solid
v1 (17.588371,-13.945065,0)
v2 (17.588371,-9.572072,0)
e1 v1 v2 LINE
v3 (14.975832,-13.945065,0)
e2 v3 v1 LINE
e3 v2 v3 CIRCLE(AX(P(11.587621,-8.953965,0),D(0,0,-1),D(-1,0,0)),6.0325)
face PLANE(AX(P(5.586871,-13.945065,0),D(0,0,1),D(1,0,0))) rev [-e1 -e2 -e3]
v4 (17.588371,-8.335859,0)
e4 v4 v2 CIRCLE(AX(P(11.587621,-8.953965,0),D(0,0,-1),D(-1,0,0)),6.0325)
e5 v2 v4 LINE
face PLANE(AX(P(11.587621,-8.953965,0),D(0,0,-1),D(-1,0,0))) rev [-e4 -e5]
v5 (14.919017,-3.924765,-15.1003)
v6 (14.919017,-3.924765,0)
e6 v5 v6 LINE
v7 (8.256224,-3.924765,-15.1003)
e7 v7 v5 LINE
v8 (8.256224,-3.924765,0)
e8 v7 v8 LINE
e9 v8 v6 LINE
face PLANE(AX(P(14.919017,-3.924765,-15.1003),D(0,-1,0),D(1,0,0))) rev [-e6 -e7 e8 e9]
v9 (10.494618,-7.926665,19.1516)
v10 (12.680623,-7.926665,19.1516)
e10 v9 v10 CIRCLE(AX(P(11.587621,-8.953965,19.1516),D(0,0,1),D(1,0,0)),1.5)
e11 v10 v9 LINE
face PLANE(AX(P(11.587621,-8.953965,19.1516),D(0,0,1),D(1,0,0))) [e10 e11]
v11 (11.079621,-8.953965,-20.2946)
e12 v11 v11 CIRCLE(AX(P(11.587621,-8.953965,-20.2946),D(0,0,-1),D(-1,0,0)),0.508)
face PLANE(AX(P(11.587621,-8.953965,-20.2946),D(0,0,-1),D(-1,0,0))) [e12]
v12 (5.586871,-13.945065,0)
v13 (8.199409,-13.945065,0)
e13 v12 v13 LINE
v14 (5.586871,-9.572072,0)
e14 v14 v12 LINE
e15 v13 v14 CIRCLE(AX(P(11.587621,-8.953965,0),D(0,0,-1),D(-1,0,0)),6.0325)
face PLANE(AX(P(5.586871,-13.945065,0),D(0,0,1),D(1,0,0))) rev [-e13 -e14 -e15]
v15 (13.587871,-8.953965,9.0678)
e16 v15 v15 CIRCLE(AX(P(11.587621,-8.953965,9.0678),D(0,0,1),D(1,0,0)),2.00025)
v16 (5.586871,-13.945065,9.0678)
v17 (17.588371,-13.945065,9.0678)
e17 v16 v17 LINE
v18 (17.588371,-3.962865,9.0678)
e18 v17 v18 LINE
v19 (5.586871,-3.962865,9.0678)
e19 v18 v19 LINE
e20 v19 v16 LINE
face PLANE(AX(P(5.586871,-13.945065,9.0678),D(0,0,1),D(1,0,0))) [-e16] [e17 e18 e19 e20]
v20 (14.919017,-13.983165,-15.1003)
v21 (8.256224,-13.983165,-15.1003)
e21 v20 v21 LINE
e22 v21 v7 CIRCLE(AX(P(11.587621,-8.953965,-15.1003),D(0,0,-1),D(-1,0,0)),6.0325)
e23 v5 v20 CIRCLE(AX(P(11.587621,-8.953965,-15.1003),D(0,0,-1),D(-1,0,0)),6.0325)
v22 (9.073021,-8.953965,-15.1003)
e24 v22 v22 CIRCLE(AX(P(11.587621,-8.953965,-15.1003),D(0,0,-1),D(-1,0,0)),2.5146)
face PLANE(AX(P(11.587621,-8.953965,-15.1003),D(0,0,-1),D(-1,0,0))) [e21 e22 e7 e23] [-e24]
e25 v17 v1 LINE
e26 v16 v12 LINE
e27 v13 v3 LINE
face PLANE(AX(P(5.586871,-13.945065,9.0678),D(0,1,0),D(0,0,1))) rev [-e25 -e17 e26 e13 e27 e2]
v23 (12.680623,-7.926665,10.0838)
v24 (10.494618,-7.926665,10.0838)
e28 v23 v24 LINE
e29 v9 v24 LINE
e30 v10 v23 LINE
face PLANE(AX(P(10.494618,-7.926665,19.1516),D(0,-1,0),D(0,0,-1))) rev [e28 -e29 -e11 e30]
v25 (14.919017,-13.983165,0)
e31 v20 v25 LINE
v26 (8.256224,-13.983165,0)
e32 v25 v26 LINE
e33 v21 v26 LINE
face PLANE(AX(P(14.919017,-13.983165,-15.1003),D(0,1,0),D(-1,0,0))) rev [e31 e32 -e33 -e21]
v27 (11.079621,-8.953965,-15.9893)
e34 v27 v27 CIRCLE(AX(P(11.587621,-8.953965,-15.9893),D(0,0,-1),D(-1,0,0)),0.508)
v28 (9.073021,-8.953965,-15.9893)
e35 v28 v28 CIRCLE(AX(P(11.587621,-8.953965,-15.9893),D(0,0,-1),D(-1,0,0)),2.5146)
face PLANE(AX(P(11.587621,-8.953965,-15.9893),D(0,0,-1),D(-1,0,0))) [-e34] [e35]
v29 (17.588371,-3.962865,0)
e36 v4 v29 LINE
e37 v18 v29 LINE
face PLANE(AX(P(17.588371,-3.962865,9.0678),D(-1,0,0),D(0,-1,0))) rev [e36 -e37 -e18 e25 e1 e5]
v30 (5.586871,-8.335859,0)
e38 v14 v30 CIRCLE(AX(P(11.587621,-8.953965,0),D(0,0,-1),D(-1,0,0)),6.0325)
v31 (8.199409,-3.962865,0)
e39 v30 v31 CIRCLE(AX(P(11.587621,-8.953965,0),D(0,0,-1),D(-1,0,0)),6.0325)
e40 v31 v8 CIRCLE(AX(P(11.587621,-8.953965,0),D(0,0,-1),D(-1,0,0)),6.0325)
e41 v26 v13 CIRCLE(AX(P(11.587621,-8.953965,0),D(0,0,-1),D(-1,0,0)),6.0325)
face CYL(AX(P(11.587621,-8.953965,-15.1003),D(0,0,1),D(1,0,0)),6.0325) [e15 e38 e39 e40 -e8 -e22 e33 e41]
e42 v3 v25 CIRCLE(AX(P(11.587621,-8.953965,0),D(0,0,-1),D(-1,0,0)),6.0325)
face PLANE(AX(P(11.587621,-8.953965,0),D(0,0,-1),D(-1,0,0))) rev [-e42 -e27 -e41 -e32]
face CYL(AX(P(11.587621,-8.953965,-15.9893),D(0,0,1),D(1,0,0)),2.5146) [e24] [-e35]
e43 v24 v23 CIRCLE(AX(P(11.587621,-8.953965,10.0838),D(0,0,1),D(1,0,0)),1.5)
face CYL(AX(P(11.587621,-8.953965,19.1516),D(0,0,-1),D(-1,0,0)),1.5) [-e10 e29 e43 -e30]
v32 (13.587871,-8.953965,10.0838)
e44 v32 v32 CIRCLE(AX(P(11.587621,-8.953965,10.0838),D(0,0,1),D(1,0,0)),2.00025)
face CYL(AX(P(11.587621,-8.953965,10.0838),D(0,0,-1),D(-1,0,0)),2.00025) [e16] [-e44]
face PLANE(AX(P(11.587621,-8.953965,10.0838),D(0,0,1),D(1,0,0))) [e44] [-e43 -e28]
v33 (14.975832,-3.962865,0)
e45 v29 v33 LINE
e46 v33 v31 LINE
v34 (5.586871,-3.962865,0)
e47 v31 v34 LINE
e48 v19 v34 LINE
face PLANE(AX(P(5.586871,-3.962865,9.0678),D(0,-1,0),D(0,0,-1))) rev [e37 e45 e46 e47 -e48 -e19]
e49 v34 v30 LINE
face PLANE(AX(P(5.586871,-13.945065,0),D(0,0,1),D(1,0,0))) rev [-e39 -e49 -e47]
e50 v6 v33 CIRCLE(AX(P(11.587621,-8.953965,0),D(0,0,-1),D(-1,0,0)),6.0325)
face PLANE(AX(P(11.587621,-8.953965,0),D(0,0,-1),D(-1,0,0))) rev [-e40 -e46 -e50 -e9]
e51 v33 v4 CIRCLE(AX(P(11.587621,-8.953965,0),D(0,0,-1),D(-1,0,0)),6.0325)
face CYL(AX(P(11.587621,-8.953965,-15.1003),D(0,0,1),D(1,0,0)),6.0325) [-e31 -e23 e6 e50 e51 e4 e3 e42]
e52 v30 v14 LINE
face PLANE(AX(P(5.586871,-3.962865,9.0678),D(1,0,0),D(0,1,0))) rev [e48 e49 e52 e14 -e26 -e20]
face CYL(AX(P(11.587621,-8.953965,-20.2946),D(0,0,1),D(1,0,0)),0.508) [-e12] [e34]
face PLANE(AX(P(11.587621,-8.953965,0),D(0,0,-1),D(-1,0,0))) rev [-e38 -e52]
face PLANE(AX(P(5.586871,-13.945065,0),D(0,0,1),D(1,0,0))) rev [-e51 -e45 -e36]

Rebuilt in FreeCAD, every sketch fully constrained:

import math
import FreeCAD as App
import Part
import Sketcher
Q = App.Units.Quantity

doc = App.newDocument("Part")
body = doc.addObject("PartDesign::Body", "Body")

sketch1 = body.newObject("Sketcher::SketchObject", "Sketch")
sketch1.AttachmentSupport = (doc.getObject("XY_Plane"), [""])
sketch1.MapMode = "FlatFace"
sketch1.addGeometry(Part.LineSegment(App.Vector(6, -4, 0), App.Vector(6, -14, 0)), False)
sketch1.addGeometry(Part.LineSegment(App.Vector(6, -14, 0), App.Vector(18, -14, 0)), False)
sketch1.addGeometry(Part.LineSegment(App.Vector(18, -14, 0), App.Vector(18, -4, 0)), False)
sketch1.addGeometry(Part.LineSegment(App.Vector(18, -4, 0), App.Vector(6, -4, 0)), False)
sketch1.addConstraint(Sketcher.Constraint("Coincident", 0, 2, 1, 1))
sketch1.addConstraint(Sketcher.Constraint("Coincident", 1, 2, 2, 1))
sketch1.addConstraint(Sketcher.Constraint("Coincident", 2, 2, 3, 1))
sketch1.addConstraint(Sketcher.Constraint("Coincident", 3, 2, 0, 1))
sketch1.addConstraint(Sketcher.Constraint("Vertical", 0))
sketch1.addConstraint(Sketcher.Constraint("Horizontal", 1))
sketch1.addConstraint(Sketcher.Constraint("Vertical", 2))
sketch1.addConstraint(Sketcher.Constraint("Horizontal", 3))
sketch1.addConstraint(Sketcher.Constraint("DistanceY", 0, 2, 0, 1, Q("0.393 in")))
sketch1.addConstraint(Sketcher.Constraint("DistanceX", 1, 1, 1, 2, Q("0.4725 in")))
sketch1.addConstraint(Sketcher.Constraint("DistanceX", -1, 1, 0, 2, Q("5.586871 mm")))
sketch1.addConstraint(Sketcher.Constraint("DistanceY", 0, 2, -1, 1, Q("13.945065 mm")))
pad1 = body.newObject("PartDesign::Pad", "Pad")
pad1.Profile = sketch1
pad1.Length = Q("0.357 in")

sketch2 = body.newObject("Sketcher::SketchObject", "Sketch001")
sketch2.AttachmentSupport = (doc.getObject("XY_Plane"), [""])
sketch2.MapMode = "FlatFace"
sketch2.addGeometry(Part.LineSegment(App.Vector(8, -4, 0), App.Vector(15, -4, 0)), False)
sketch2.addGeometry(Part.ArcOfCircle(Part.Circle(App.Vector(12, -9, 0), App.Vector(0, 0, 1), 6), math.radians(-56), math.radians(56)), False)
sketch2.addGeometry(Part.LineSegment(App.Vector(15, -14, 0), App.Vector(8, -14, 0)), False)
sketch2.addGeometry(Part.ArcOfCircle(Part.Circle(App.Vector(12, -9, 0), App.Vector(0, 0, 1), 6), math.radians(124), math.radians(236)), False)
sketch2.addConstraint(Sketcher.Constraint("Coincident", 0, 2, 1, 2))
sketch2.addConstraint(Sketcher.Constraint("Coincident", 1, 1, 2, 1))
sketch2.addConstraint(Sketcher.Constraint("Coincident", 2, 2, 3, 2))
sketch2.addConstraint(Sketcher.Constraint("Coincident", 3, 1, 0, 1))
sketch2.addConstraint(Sketcher.Constraint("Horizontal", 0))
sketch2.addConstraint(Sketcher.Constraint("Horizontal", 2))
sketch2.addConstraint(Sketcher.Constraint("Coincident", 3, 3, 1, 3))
sketch2.addConstraint(Sketcher.Constraint("Equal", 1, 3))
sketch2.addConstraint(Sketcher.Constraint("Vertical", 0, 2, 1, 1))
sketch2.addConstraint(Sketcher.Constraint("Radius", 1, Q("0.2375 in")))
sketch2.addConstraint(Sketcher.Constraint("DistanceY", 1, 3, 0, 2, Q("0.198 in")))
sketch2.addConstraint(Sketcher.Constraint("DistanceX", -1, 1, 1, 3, Q("11.587621 mm")))
sketch2.addConstraint(Sketcher.Constraint("DistanceY", 1, 3, -1, 1, Q("8.953965 mm")))
pad2 = body.newObject("PartDesign::Pad", "Pad001")
pad2.Profile = sketch2
pad2.Length = Q("0.5945 in")
pad2.Reversed = True

sketch3 = body.newObject("Sketcher::SketchObject", "Sketch002")
sketch3.AttachmentSupport = (doc.getObject("XY_Plane"), [""])
sketch3.MapMode = "FlatFace"
sketch3.AttachmentOffset = App.Placement(App.Vector(0, 0, 0.357 * 25.4), App.Rotation())
sketch3.addGeometry(Part.Circle(App.Vector(11.6, -9, 0), App.Vector(0, 0, 1), 2), False)
sketch3.addConstraint(Sketcher.Constraint("Diameter", 0, Q("0.1575 in")))
sketch3.addConstraint(Sketcher.Constraint("DistanceX", -1, 1, 0, 3, Q("11.587621 mm")))
sketch3.addConstraint(Sketcher.Constraint("DistanceY", 0, 3, -1, 1, Q("8.953965 mm")))
pad3 = body.newObject("PartDesign::Pad", "Pad002")
pad3.Profile = sketch3
pad3.Length = Q("0.04 in")

sketch4 = body.newObject("Sketcher::SketchObject", "Sketch003")
sketch4.AttachmentSupport = (doc.getObject("XY_Plane"), [""])
sketch4.MapMode = "FlatFace"
sketch4.AttachmentOffset = App.Placement(App.Vector(0, 0, 0.397 * 25.4), App.Rotation())
sketch4.addGeometry(Part.LineSegment(App.Vector(12.7, -7.9, 0), App.Vector(10.5, -7.9, 0)), False)
sketch4.addGeometry(Part.ArcOfCircle(Part.Circle(App.Vector(11.6, -9, 0), App.Vector(0, 0, 1), 1.5), math.radians(137), math.radians(403)), False)
sketch4.addConstraint(Sketcher.Constraint("Coincident", 0, 1, 1, 2))
sketch4.addConstraint(Sketcher.Constraint("Coincident", 1, 1, 0, 2))
sketch4.addConstraint(Sketcher.Constraint("Horizontal", 0))
sketch4.addConstraint(Sketcher.Constraint("Radius", 1, Q("1.5 mm")))
sketch4.addConstraint(Sketcher.Constraint("DistanceY", 1, 3, 0, 1, Q("1.0273 mm")))
sketch4.addConstraint(Sketcher.Constraint("DistanceX", -1, 1, 1, 3, Q("11.587621 mm")))
sketch4.addConstraint(Sketcher.Constraint("DistanceY", 1, 3, -1, 1, Q("8.953965 mm")))
pad4 = body.newObject("PartDesign::Pad", "Pad003")
pad4.Profile = sketch4
pad4.Length = Q("0.357 in")

sketch5 = body.newObject("Sketcher::SketchObject", "Sketch004")
sketch5.AttachmentSupport = (doc.getObject("XY_Plane"), [""])
sketch5.MapMode = "FlatFace"
sketch5.AttachmentOffset = App.Placement(App.Vector(0, 0, -0.5945 * 25.4), App.Rotation())
sketch5.addGeometry(Part.Circle(App.Vector(11.6, -9, 0), App.Vector(0, 0, 1), 2.5), False)
sketch5.addConstraint(Sketcher.Constraint("Diameter", 0, Q("0.198 in")))
sketch5.addConstraint(Sketcher.Constraint("DistanceX", -1, 1, 0, 3, Q("11.587621 mm")))
sketch5.addConstraint(Sketcher.Constraint("DistanceY", 0, 3, -1, 1, Q("8.953965 mm")))
pad5 = body.newObject("PartDesign::Pad", "Pad004")
pad5.Profile = sketch5
pad5.Length = Q("0.035 in")
pad5.Reversed = True

sketch6 = body.newObject("Sketcher::SketchObject", "Sketch005")
sketch6.AttachmentSupport = (doc.getObject("XY_Plane"), [""])
sketch6.MapMode = "FlatFace"
sketch6.AttachmentOffset = App.Placement(App.Vector(0, 0, -0.6295 * 25.4), App.Rotation())
sketch6.addGeometry(Part.Circle(App.Vector(11.6, -9, 0), App.Vector(0, 0, 1), 0.5), False)
sketch6.addConstraint(Sketcher.Constraint("Diameter", 0, Q("0.04 in")))
sketch6.addConstraint(Sketcher.Constraint("DistanceX", -1, 1, 0, 3, Q("11.587621 mm")))
sketch6.addConstraint(Sketcher.Constraint("DistanceY", 0, 3, -1, 1, Q("8.953965 mm")))
pad6 = body.newObject("PartDesign::Pad", "Pad005")
pad6.Profile = sketch6
pad6.Length = Q("0.1695 in")
pad6.Reversed = True

doc.recompute()
